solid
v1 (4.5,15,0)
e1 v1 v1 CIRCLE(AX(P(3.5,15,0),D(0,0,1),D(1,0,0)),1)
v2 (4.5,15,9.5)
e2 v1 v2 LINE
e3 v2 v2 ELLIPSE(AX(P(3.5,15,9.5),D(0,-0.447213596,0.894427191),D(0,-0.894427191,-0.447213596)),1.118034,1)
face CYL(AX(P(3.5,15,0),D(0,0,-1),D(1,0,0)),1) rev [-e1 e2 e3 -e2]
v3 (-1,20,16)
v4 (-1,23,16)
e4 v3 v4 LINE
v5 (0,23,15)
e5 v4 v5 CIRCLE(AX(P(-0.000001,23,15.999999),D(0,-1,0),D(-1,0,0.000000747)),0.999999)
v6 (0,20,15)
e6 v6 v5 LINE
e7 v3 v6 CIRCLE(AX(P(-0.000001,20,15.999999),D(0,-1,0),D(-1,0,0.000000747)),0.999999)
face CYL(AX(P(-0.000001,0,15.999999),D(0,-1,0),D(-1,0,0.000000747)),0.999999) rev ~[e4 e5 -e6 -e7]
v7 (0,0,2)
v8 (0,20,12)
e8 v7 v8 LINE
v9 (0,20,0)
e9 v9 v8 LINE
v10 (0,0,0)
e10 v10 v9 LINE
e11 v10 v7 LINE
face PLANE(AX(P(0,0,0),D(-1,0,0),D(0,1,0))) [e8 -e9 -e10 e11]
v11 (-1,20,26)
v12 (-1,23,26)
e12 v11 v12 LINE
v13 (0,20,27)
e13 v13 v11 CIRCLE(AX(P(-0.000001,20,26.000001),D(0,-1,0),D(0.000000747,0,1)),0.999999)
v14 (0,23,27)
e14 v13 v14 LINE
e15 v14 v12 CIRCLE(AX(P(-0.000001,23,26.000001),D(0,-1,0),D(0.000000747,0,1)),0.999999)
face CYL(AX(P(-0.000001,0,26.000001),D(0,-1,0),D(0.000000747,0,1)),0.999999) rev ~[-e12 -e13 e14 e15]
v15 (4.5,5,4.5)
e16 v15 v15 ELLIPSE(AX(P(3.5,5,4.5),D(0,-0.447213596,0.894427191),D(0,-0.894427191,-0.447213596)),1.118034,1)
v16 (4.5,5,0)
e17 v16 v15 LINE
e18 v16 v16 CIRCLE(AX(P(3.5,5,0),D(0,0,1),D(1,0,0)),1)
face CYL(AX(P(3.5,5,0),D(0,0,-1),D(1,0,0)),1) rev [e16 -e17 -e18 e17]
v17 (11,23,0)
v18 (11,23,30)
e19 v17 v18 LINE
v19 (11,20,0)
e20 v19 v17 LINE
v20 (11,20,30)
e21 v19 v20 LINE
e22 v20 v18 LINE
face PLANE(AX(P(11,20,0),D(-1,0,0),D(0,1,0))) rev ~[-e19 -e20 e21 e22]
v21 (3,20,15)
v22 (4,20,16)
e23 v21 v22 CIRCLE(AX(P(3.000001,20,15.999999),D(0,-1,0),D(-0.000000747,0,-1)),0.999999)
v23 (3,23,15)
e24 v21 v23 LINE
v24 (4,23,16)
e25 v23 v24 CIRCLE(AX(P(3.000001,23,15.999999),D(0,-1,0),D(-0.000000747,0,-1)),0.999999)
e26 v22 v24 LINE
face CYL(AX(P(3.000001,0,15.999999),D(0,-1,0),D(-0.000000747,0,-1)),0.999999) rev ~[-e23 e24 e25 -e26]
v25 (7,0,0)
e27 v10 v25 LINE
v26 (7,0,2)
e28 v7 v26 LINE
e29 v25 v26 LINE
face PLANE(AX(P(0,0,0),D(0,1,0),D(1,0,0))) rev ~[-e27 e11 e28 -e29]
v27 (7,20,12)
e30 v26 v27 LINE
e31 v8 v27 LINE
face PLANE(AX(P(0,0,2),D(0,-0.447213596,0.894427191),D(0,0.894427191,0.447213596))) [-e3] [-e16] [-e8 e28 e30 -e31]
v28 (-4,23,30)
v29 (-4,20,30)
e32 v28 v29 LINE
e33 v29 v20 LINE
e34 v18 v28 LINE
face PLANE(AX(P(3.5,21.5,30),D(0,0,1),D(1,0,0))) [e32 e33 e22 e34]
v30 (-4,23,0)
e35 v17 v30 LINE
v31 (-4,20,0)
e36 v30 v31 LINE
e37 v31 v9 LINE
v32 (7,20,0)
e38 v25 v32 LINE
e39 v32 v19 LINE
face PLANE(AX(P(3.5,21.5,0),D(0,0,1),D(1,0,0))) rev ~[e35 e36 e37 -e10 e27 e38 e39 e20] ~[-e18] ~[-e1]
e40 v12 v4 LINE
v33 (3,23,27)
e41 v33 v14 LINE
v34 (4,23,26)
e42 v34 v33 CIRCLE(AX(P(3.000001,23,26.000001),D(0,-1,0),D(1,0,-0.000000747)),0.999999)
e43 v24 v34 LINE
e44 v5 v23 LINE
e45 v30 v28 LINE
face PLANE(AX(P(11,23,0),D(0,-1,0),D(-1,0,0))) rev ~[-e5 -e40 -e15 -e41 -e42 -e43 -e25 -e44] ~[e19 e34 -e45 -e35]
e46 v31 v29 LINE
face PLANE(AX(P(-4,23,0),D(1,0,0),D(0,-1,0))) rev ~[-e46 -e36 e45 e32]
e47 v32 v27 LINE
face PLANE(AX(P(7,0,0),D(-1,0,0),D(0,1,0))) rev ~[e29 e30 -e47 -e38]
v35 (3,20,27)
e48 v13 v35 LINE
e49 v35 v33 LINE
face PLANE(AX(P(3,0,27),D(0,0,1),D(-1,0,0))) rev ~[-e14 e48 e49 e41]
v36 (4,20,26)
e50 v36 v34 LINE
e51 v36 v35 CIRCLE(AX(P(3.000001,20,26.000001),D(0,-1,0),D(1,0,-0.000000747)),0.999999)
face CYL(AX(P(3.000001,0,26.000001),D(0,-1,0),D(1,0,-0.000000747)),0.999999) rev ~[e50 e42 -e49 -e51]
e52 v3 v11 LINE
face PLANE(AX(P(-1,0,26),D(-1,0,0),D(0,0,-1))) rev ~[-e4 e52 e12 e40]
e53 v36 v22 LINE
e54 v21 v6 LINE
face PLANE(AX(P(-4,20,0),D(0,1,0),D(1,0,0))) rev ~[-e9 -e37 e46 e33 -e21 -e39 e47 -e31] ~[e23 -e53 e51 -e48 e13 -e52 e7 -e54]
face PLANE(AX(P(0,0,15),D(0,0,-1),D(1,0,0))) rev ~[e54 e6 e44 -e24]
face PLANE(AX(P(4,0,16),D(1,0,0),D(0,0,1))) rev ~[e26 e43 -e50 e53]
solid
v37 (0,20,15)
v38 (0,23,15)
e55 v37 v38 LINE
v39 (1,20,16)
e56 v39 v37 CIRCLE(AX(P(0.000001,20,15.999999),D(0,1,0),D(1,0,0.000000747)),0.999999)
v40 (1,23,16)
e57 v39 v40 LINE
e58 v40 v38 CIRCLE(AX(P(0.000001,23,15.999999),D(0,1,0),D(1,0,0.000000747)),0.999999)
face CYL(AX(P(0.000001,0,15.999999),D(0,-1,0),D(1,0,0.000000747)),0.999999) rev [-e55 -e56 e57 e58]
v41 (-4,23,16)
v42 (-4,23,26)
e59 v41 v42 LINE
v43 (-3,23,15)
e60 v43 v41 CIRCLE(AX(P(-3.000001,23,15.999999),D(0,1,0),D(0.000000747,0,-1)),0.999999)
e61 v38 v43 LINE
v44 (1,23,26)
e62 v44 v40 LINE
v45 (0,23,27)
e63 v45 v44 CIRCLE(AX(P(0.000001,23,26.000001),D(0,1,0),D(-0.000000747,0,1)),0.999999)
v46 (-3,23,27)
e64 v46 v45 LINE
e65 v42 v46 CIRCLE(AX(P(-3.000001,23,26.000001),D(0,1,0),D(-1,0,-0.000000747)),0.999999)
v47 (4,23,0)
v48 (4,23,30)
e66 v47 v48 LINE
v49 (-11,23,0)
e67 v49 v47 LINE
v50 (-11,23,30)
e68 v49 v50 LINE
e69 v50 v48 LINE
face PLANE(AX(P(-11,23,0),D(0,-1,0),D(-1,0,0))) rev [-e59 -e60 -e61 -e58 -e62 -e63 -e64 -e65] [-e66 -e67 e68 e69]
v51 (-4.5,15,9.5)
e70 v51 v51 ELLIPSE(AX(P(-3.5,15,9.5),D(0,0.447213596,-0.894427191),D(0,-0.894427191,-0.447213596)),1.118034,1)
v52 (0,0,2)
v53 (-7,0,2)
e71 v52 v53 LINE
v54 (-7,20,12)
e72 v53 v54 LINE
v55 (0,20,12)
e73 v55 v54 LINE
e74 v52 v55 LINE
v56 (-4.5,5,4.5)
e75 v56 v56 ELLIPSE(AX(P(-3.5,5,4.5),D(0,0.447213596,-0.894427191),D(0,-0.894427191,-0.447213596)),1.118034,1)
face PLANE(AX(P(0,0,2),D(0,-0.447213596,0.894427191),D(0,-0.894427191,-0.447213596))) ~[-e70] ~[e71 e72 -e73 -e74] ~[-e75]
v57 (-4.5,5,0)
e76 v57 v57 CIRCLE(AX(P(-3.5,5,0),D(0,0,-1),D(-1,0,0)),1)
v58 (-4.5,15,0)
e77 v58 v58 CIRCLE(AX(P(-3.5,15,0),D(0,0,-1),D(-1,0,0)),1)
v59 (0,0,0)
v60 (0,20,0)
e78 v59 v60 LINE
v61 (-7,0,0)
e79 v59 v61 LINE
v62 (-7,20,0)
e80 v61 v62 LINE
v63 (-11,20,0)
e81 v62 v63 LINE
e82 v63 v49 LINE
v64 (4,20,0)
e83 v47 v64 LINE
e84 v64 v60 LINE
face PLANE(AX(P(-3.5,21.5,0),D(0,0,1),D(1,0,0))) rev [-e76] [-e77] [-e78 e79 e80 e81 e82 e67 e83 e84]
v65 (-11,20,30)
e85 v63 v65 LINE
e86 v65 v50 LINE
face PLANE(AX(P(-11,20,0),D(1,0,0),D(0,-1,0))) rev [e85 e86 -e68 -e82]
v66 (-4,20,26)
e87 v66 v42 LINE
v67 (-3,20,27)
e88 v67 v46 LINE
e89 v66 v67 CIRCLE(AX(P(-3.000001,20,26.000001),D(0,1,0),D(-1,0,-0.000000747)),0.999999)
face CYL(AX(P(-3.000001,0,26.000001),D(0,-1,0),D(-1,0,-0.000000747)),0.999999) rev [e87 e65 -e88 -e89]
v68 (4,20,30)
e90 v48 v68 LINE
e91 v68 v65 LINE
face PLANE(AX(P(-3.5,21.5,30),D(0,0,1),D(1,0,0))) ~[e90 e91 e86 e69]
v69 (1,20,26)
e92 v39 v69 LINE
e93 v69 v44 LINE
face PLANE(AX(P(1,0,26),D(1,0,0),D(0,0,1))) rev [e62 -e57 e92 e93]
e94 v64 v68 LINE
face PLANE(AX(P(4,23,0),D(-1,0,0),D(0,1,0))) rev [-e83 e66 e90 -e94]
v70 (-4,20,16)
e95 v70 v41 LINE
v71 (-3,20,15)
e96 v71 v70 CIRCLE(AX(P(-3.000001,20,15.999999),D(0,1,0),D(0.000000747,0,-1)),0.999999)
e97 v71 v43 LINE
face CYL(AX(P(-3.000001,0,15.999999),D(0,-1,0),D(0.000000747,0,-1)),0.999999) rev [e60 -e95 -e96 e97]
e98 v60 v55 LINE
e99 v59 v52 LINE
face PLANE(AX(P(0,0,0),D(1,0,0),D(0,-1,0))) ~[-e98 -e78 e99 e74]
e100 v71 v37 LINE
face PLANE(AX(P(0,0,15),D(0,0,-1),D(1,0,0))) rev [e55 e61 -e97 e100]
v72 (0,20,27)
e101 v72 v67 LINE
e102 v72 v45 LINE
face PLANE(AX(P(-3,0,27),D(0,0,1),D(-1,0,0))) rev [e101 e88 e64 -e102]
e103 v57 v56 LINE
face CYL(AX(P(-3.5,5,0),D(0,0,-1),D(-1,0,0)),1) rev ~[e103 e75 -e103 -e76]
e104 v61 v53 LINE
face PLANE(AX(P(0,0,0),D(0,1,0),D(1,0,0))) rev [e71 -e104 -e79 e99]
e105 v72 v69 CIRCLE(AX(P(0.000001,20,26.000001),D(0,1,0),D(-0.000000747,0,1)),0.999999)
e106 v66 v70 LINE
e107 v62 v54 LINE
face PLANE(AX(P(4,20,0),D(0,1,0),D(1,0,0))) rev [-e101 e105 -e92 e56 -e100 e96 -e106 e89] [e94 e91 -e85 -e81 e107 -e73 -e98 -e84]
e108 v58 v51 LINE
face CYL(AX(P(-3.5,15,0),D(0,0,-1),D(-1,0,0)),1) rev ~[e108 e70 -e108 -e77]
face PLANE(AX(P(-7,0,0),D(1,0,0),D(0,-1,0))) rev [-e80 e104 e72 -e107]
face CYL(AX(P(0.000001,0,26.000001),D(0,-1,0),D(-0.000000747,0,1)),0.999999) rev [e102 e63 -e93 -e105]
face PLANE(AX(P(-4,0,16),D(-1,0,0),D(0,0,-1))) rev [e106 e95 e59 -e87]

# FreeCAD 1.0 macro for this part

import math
import FreeCAD as App
import Part
import Sketcher


def add_polygon(sketch, points):
    """Adds a closed chain of lines whose ends are joined by coincident constraints."""
    first, n = sketch.GeometryCount, len(points)
    for a, b in zip(points, points[1:] + points[:1]):
        sketch.addGeometry(Part.LineSegment(App.Vector(*a, 0), App.Vector(*b, 0)), False)
    for i in range(n):
        sketch.addConstraint(Sketcher.Constraint("Coincident", first + i, 2, first + (i + 1) % n, 1))

doc = App.newDocument("Part")
body = doc.addObject("PartDesign::Body", "Body")

# Sketch on XY plane
sketch1 = body.newObject("Sketcher::SketchObject", "Sketch")
sketch1.AttachmentSupport = (doc.getObject("XY_Plane"), [""])
sketch1.MapMode = "FlatFace"
add_polygon(sketch1, [(0, 20), (0, 0), (7, 0), (7, 20)])  # lines 0-3
sketch1.addGeometry(Part.Circle(App.Vector(3.5, 5, 0), App.Vector(0, 0, 1), 1), False)  # 4
sketch1.addGeometry(Part.Circle(App.Vector(3.5, 15, 0), App.Vector(0, 0, 1), 1), False)  # 5
sketch1.addConstraint([
    Sketcher.Constraint("Vertical", 0),
    Sketcher.Constraint("Horizontal", 1),
    Sketcher.Constraint("Vertical", 2),
    Sketcher.Constraint("Horizontal", 3),
    Sketcher.Constraint("Coincident", 0, 2, -1, 1),
    Sketcher.Constraint("Equal", 4, 5),
    Sketcher.Constraint("Vertical", 4, 3, 5, 3),
    Sketcher.Constraint("Diameter", 4, 2.0),
    Sketcher.Constraint("DistanceX", 1, 1, 1, 2, 7.0),
    Sketcher.Constraint("DistanceY", 0, 2, 0, 1, 20.0),
    Sketcher.Constraint("DistanceY", -1, 1, 4, 3, 5.0),
    Sketcher.Constraint("DistanceY", -1, 1, 5, 3, 15.0),
    Sketcher.Constraint("DistanceX", -1, 1, 4, 3, 3.5),
])
pad1 = body.newObject("PartDesign::Pad", "Pad")
pad1.Profile = sketch1
pad1.Length = 12

# Sketch on XY plane
sketch2 = body.newObject("Sketcher::SketchObject", "Sketch001")
sketch2.AttachmentSupport = (doc.getObject("XY_Plane"), [""])
sketch2.MapMode = "FlatFace"
add_polygon(sketch2, [(-4, 20), (11, 20), (11, 23), (-4, 23)])  # lines 0-3
sketch2.addConstraint([
    Sketcher.Constraint("Horizontal", 0),
    Sketcher.Constraint("Vertical", 1),
    Sketcher.Constraint("Horizontal", 2),
    Sketcher.Constraint("Vertical", 3),
    Sketcher.Constraint("DistanceX", 0, 1, 0, 2, 15.0),
    Sketcher.Constraint("DistanceY", 1, 1, 1, 2, 3.0),
    Sketcher.Constraint("DistanceX", -1, 1, 0, 2, 11.0),
    Sketcher.Constraint("DistanceY", -1, 1, 0, 2, 20.0),
])
pad2 = body.newObject("PartDesign::Pad", "Pad001")
pad2.Profile = sketch2
pad2.Length = 30

# Sketch on YZ plane
sketch3 = body.newObject("Sketcher::SketchObject", "Sketch002")
sketch3.AttachmentSupport = (doc.getObject("YZ_Plane"), [""])
sketch3.MapMode = "FlatFace"
add_polygon(sketch3, [(0, 2), (20, 12), (0, 12)])  # lines 0-2
sketch3.addConstraint([
    Sketcher.Constraint("Horizontal", 1),
    Sketcher.Constraint("Vertical", 2),
    Sketcher.Constraint("PointOnObject", 1, 2, -2),
    Sketcher.Constraint("DistanceX", 1, 2, 1, 1, 20.0),
    Sketcher.Constraint("DistanceY", 2, 2, 2, 1, 10.0),
    Sketcher.Constraint("DistanceY", -1, 1, 0, 2, 12.0),
])
pocket1 = body.newObject("PartDesign::Pocket", "Pocket")
pocket1.Profile = sketch3
pocket1.Length = 10
pocket1.Reversed = True

# Sketch on XZ plane
sketch4 = body.newObject("Sketcher::SketchObject", "Sketch003")
sketch4.AttachmentSupport = (doc.getObject("XZ_Plane"), [""])
sketch4.MapMode = "FlatFace"
sketch4.addGeometry([
    Part.LineSegment(App.Vector(0, 15, 0), App.Vector(3, 15, 0)),  # 0
    Part.ArcOfCircle(Part.Circle(App.Vector(3.000001, 15.999999, 0), App.Vector(0, 0, 1), 0.999999), math.radians(-90.000043), math.radians(0.000043)),  # 1
    Part.LineSegment(App.Vector(4, 16, 0), App.Vector(4, 26, 0)),  # 2
    Part.ArcOfCircle(Part.Circle(App.Vector(3.000001, 26.000001, 0), App.Vector(0, 0, 1), 0.999999), math.radians(-0.000043), math.radians(90.000043)),  # 3
    Part.LineSegment(App.Vector(3, 27, 0), App.Vector(0, 27, 0)),  # 4
    Part.ArcOfCircle(Part.Circle(App.Vector(-0.000001, 26.000001, 0), App.Vector(0, 0, 1), 0.999999), math.radians(89.999957), math.radians(180.000043)),  # 5
    Part.LineSegment(App.Vector(-1, 26, 0), App.Vector(-1, 16, 0)),  # 6
    Part.ArcOfCircle(Part.Circle(App.Vector(-0.000001, 15.999999, 0), App.Vector(0, 0, 1), 0.999999), math.radians(179.999957), math.radians(270.000043)),  # 7
], False)
sketch4.addConstraint([
    Sketcher.Constraint("Tangent", 0, 2, 1, 1),
    Sketcher.Constraint("Tangent", 1, 2, 2, 1),
    Sketcher.Constraint("Tangent", 2, 2, 3, 1),
    Sketcher.Constraint("Tangent", 3, 2, 4, 1),
    Sketcher.Constraint("Tangent", 4, 2, 5, 1),
    Sketcher.Constraint("Tangent", 5, 2, 6, 1),
    Sketcher.Constraint("Tangent", 6, 2, 7, 1),
    Sketcher.Constraint("Tangent", 7, 2, 0, 1),
    Sketcher.Constraint("Horizontal", 0),
    Sketcher.Constraint("Vertical", 2),
    Sketcher.Constraint("Horizontal", 4),
    Sketcher.Constraint("Vertical", 6),
    Sketcher.Constraint("Equal", 1, 3),
    Sketcher.Constraint("Equal", 3, 5),
    Sketcher.Constraint("Equal", 5, 7),
    Sketcher.Constraint("PointOnObject", 5, 3, -2),
    Sketcher.Constraint("Radius", 1, 0.999999),
    Sketcher.Constraint("DistanceX", 0, 1, 0, 2, 3.0),
    Sketcher.Constraint("DistanceY", 2, 1, 2, 2, 10.0),
    Sketcher.Constraint("DistanceY", -1, 1, 1, 3, 15.999999),
])
pocket2 = body.newObject("PartDesign::Pocket", "Pocket001")
pocket2.Profile = sketch4
pocket2.Length = 25.4
body2 = doc.addObject("PartDesign::Body", "Body001")
doc.recompute()

mirroring = doc.addObject("Part::Mirroring", "Mirroring")
mirroring.Source = body
mirroring.Base = App.Vector(0, 0, 0)
mirroring.Normal = App.Vector(1, 0, 0)
body2.BaseFeature = mirroring
doc.recompute()
mirroring.Visibility = False

doc.recompute()
